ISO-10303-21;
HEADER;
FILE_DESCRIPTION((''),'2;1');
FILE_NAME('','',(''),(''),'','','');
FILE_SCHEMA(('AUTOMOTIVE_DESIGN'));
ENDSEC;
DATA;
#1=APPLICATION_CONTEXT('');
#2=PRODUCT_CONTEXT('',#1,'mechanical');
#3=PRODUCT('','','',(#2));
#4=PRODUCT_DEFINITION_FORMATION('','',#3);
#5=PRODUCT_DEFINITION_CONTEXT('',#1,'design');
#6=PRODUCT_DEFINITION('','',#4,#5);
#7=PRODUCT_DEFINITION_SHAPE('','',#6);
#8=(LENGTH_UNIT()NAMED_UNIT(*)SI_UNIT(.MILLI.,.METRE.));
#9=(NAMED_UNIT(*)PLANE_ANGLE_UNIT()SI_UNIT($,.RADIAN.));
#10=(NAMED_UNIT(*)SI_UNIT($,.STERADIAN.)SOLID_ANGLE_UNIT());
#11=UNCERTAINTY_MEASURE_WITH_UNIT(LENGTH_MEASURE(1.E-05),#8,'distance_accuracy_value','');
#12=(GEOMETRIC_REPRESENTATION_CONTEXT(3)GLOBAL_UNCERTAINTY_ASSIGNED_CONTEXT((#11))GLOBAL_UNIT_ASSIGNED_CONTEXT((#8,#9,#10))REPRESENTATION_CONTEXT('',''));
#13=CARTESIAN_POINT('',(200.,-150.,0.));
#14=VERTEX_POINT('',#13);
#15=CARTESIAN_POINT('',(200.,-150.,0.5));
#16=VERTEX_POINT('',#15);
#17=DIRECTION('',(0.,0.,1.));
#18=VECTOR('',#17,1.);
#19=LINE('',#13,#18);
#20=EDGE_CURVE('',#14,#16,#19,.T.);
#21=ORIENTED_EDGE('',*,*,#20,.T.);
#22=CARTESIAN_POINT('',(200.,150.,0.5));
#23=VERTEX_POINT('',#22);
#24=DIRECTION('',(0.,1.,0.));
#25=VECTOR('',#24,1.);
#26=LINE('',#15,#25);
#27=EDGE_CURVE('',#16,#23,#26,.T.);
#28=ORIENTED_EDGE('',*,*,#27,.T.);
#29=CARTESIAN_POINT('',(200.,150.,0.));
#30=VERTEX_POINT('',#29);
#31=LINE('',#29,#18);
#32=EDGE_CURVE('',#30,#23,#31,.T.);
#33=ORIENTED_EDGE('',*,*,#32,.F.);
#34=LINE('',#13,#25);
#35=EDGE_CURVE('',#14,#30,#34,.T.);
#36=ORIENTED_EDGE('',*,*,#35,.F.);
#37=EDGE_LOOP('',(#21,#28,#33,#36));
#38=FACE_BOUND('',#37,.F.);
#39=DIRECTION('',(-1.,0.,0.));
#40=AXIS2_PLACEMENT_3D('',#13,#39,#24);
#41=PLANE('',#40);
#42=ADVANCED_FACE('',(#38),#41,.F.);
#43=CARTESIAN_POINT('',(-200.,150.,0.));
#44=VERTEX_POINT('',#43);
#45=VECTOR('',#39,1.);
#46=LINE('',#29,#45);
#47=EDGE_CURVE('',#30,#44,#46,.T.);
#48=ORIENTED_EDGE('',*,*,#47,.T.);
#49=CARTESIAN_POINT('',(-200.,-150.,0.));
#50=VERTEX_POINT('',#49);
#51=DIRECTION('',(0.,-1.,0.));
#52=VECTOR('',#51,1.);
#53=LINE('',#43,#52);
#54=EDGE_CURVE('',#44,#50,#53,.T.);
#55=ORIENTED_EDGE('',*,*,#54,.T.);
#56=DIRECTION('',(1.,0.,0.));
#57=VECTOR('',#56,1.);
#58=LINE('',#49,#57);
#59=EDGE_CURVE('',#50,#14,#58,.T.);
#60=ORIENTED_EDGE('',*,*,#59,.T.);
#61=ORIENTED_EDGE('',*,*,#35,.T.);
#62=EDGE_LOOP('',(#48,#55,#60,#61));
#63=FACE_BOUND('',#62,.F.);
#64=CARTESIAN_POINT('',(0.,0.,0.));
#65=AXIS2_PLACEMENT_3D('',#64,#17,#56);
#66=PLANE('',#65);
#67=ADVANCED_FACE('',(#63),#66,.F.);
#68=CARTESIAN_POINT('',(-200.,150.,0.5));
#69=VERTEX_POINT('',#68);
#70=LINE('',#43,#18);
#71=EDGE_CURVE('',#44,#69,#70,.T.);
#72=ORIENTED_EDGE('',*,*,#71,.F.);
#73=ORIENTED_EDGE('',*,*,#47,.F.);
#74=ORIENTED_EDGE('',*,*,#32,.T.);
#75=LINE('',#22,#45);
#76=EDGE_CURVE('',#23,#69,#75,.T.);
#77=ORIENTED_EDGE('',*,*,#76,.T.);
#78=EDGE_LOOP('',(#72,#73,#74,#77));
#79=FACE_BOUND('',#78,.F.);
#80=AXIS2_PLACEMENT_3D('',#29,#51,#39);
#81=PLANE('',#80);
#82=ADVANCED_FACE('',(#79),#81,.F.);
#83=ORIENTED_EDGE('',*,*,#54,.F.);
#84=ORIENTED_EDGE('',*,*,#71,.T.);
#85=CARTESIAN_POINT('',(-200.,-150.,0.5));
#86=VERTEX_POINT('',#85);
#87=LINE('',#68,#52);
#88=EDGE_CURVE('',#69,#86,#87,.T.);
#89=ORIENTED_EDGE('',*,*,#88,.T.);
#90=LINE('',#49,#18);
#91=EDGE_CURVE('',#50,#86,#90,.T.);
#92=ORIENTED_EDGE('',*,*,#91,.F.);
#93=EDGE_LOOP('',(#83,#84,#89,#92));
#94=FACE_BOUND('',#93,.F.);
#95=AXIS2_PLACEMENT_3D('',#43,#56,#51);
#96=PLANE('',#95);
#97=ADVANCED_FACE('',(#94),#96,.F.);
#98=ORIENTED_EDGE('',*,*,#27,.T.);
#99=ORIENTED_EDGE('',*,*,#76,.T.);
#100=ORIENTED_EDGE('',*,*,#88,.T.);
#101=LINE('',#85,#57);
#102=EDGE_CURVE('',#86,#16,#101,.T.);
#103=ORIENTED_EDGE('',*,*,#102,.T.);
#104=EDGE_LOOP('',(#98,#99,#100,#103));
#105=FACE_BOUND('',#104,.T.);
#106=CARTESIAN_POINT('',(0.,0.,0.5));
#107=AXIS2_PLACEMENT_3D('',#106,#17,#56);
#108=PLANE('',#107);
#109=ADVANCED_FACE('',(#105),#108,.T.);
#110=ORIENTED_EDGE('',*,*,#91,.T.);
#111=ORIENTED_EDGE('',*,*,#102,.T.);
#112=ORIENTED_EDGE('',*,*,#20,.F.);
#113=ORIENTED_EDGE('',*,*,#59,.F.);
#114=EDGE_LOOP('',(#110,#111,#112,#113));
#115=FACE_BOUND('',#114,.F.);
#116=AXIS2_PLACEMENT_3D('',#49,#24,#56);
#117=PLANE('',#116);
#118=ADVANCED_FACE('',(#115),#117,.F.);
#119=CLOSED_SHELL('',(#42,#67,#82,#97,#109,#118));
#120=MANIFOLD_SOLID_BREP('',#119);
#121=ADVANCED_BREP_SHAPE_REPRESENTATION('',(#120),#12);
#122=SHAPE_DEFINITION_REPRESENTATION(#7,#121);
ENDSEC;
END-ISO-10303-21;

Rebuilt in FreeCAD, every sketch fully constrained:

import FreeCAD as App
import Part
import Sketcher
from FreeCAD import Vector

doc = App.newDocument("Part")
body = doc.addObject("PartDesign::Body", "Body")

sketch1 = doc.addObject("Sketcher::SketchObject", "Sketch")
body.addObject(sketch1)
sketch1.AttachmentSupport = (doc.XY_Plane, [""])
sketch1.MapMode = "FlatFace"
sketch1.addGeometry(Part.LineSegment(Vector(-200, 150, 0), Vector(-200, -150, 0)), False)
sketch1.addGeometry(Part.LineSegment(Vector(-200, -150, 0), Vector(200, -150, 0)), False)
sketch1.addGeometry(Part.LineSegment(Vector(200, -150, 0), Vector(200, 150, 0)), False)
sketch1.addGeometry(Part.LineSegment(Vector(200, 150, 0), Vector(-200, 150, 0)), False)
sketch1.addConstraint(Sketcher.Constraint("Coincident", 0, 2, 1, 1))
sketch1.addConstraint(Sketcher.Constraint("Coincident", 1, 2, 2, 1))
sketch1.addConstraint(Sketcher.Constraint("Coincident", 2, 2, 3, 1))
sketch1.addConstraint(Sketcher.Constraint("Coincident", 3, 2, 0, 1))
sketch1.addConstraint(Sketcher.Constraint("Vertical", 0))
sketch1.addConstraint(Sketcher.Constraint("Horizontal", 1))
sketch1.addConstraint(Sketcher.Constraint("Vertical", 2))
sketch1.addConstraint(Sketcher.Constraint("Horizontal", 3))
sketch1.addConstraint(Sketcher.Constraint("Symmetric", 0, 2, 2, 2, -1, 1))
sketch1.addConstraint(Sketcher.Constraint("DistanceX", 1, 1, 1, 2, 400.0))
sketch1.addConstraint(Sketcher.Constraint("DistanceY", 0, 2, 0, 1, 300.0))
pad1 = doc.addObject("PartDesign::Pad", "Pad")
body.addObject(pad1)
pad1.Profile = sketch1
pad1.Length = 0.5

doc.recompute()
